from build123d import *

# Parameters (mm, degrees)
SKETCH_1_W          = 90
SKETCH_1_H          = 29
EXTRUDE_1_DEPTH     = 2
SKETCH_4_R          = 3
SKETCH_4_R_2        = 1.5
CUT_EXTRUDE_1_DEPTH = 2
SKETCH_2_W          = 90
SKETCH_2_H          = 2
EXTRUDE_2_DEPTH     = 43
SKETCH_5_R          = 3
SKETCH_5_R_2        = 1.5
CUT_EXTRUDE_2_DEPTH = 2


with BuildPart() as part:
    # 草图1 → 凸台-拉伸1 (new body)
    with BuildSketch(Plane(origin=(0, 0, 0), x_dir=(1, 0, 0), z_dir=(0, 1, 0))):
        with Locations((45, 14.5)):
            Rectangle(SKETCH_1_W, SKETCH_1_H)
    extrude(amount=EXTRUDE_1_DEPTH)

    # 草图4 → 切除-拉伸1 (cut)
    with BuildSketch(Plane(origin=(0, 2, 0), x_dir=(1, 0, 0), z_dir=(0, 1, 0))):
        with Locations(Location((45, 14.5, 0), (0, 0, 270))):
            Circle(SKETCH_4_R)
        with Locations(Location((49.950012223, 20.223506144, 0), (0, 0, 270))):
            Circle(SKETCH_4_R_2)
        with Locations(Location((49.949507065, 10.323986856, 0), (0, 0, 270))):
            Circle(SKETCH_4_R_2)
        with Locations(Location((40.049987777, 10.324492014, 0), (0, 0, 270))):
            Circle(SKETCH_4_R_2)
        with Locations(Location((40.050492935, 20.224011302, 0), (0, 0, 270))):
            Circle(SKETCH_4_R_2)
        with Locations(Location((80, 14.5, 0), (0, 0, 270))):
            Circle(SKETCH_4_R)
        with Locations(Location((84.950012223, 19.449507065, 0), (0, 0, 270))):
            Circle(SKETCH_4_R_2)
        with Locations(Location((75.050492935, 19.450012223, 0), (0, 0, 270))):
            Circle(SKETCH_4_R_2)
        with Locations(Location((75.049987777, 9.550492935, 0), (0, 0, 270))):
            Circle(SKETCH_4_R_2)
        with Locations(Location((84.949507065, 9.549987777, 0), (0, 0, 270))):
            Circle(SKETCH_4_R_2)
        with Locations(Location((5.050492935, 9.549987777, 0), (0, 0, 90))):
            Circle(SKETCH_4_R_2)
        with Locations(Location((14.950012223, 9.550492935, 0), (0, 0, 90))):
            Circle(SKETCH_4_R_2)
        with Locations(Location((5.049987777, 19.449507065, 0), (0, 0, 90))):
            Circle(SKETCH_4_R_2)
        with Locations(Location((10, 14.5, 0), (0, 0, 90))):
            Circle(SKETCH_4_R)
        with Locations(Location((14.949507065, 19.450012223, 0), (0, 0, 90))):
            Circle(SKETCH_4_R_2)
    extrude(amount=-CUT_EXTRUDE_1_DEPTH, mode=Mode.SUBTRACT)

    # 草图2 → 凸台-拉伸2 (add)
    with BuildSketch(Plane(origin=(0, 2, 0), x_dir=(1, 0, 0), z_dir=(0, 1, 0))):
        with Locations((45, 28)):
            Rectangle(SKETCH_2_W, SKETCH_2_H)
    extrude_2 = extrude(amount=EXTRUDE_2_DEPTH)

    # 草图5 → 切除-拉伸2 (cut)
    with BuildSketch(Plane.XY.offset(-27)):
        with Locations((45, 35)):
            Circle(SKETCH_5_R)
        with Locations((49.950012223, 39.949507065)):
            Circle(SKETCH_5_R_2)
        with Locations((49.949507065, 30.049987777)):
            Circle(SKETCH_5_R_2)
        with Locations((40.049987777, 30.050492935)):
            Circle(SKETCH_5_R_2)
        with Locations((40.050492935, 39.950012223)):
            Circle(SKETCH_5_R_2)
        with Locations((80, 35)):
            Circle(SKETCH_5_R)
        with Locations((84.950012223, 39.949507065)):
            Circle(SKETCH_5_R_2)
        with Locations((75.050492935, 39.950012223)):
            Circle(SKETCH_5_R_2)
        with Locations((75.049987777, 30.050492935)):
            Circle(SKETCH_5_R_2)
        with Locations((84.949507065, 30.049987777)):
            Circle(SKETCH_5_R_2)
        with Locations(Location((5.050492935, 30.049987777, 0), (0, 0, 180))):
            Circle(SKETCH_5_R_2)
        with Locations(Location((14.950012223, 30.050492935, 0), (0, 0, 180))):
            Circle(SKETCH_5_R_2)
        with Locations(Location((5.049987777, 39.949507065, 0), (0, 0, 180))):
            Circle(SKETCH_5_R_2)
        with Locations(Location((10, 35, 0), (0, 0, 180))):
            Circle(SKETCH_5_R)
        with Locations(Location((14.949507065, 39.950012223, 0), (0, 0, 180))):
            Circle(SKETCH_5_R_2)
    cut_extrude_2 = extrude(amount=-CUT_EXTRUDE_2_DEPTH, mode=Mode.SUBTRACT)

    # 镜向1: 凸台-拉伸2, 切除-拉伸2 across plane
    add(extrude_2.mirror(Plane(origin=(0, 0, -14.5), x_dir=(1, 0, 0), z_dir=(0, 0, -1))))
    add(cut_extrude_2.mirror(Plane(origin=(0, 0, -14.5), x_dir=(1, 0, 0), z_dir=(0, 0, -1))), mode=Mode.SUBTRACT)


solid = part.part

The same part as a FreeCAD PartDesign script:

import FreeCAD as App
import Part
import Sketcher
from FreeCAD import Vector

doc = App.newDocument("Part")
body = doc.addObject("PartDesign::Body", "Body")

sketch1 = doc.addObject("Sketcher::SketchObject", "Sketch")
body.addObject(sketch1)
sketch1.AttachmentSupport = (doc.XZ_Plane, [""])
sketch1.MapMode = "FlatFace"
sketch1.addGeometry(Part.LineSegment(Vector(0, -29, 0), Vector(0, 0, 0)), False)
sketch1.addGeometry(Part.LineSegment(Vector(0, 0, 0), Vector(90, 0, 0)), False)
sketch1.addGeometry(Part.LineSegment(Vector(90, 0, 0), Vector(90, -29, 0)), False)
sketch1.addGeometry(Part.LineSegment(Vector(90, -29, 0), Vector(0, -29, 0)), False)
sketch1.addConstraint(Sketcher.Constraint("Coincident", 0, 2, 1, 1))
sketch1.addConstraint(Sketcher.Constraint("Coincident", 1, 2, 2, 1))
sketch1.addConstraint(Sketcher.Constraint("Coincident", 2, 2, 3, 1))
sketch1.addConstraint(Sketcher.Constraint("Coincident", 3, 2, 0, 1))
sketch1.addConstraint(Sketcher.Constraint("Vertical", 0))
sketch1.addConstraint(Sketcher.Constraint("Horizontal", 1))
sketch1.addConstraint(Sketcher.Constraint("Vertical", 2))
sketch1.addConstraint(Sketcher.Constraint("Horizontal", 3))
sketch1.addConstraint(Sketcher.Constraint("Coincident", 0, 2, -1, 1))
sketch1.addConstraint(Sketcher.Constraint("DistanceX", 1, 1, 1, 2, 90.0))
sketch1.addConstraint(Sketcher.Constraint("DistanceY", 0, 1, 0, 2, 29.0))
pad1 = doc.addObject("PartDesign::Pad", "Pad")
body.addObject(pad1)
pad1.Profile = sketch1
pad1.Length = 2
pad1.Reversed = True

sketch2 = doc.addObject("Sketcher::SketchObject", "Sketch001")
body.addObject(sketch2)
sketch2.AttachmentSupport = (doc.XZ_Plane, [""])
sketch2.MapMode = "FlatFace"
sketch2.AttachmentOffset = App.Placement(Vector(0, 0, -2), App.Rotation())
sketch2.addGeometry(Part.Circle(Vector(45, -14.5, 0), Vector(0, 0, 1), 3), False)
sketch2.addGeometry(Part.Circle(Vector(50, -20.2, 0), Vector(0, 0, 1), 1.5), False)
sketch2.addGeometry(Part.Circle(Vector(49.9, -10.3, 0), Vector(0, 0, 1), 1.5), False)
sketch2.addGeometry(Part.Circle(Vector(40, -10.3, 0), Vector(0, 0, 1), 1.5), False)
sketch2.addGeometry(Part.Circle(Vector(40.1, -20.2, 0), Vector(0, 0, 1), 1.5), False)
sketch2.addGeometry(Part.Circle(Vector(80, -14.5, 0), Vector(0, 0, 1), 3), False)
sketch2.addGeometry(Part.Circle(Vector(85, -19.4, 0), Vector(0, 0, 1), 1.5), False)
sketch2.addGeometry(Part.Circle(Vector(75.1, -19.5, 0), Vector(0, 0, 1), 1.5), False)
sketch2.addGeometry(Part.Circle(Vector(75, -9.6, 0), Vector(0, 0, 1), 1.5), False)
sketch2.addGeometry(Part.Circle(Vector(84.9, -9.5, 0), Vector(0, 0, 1), 1.5), False)
sketch2.addGeometry(Part.Circle(Vector(5.1, -9.5, 0), Vector(0, 0, 1), 1.5), False)
sketch2.addGeometry(Part.Circle(Vector(15, -9.6, 0), Vector(0, 0, 1), 1.5), False)
sketch2.addGeometry(Part.Circle(Vector(5, -19.4, 0), Vector(0, 0, 1), 1.5), False)
sketch2.addGeometry(Part.Circle(Vector(10, -14.5, 0), Vector(0, 0, 1), 3), False)
sketch2.addGeometry(Part.Circle(Vector(14.9, -19.5, 0), Vector(0, 0, 1), 1.5), False)
sketch2.addConstraint(Sketcher.Constraint("Equal", 1, 2))
sketch2.addConstraint(Sketcher.Constraint("Equal", 2, 3))
sketch2.addConstraint(Sketcher.Constraint("Equal", 3, 4))
sketch2.addConstraint(Sketcher.Constraint("Equal", 0, 5))
sketch2.addConstraint(Sketcher.Constraint("Equal", 4, 6))
sketch2.addConstraint(Sketcher.Constraint("Equal", 6, 7))
sketch2.addConstraint(Sketcher.Constraint("Equal", 7, 8))
sketch2.addConstraint(Sketcher.Constraint("Equal", 8, 9))
sketch2.addConstraint(Sketcher.Constraint("Equal", 9, 10))
sketch2.addConstraint(Sketcher.Constraint("Equal", 10, 11))
sketch2.addConstraint(Sketcher.Constraint("Equal", 11, 12))
sketch2.addConstraint(Sketcher.Constraint("Equal", 5, 13))
sketch2.addConstraint(Sketcher.Constraint("Equal", 12, 14))
sketch2.addConstraint(Sketcher.Constraint("Horizontal", 0, 3, 5, 3))
sketch2.addConstraint(Sketcher.Constraint("Horizontal", 9, 3, 10, 3))
sketch2.addConstraint(Sketcher.Constraint("Horizontal", 8, 3, 11, 3))
sketch2.addConstraint(Sketcher.Constraint("Horizontal", 6, 3, 12, 3))
sketch2.addConstraint(Sketcher.Constraint("Horizontal", 5, 3, 13, 3))
sketch2.addConstraint(Sketcher.Constraint("Horizontal", 7, 3, 14, 3))
sketch2.addConstraint(Sketcher.Constraint("Diameter", 0, 6.0))
sketch2.addConstraint(Sketcher.Constraint("Diameter", 1, 3.0))
sketch2.addConstraint(Sketcher.Constraint("DistanceX", -1, 1, 0, 3, 45.0))
sketch2.addConstraint(Sketcher.Constraint("DistanceX", -1, 1, 5, 3, 80.0))
sketch2.addConstraint(Sketcher.Constraint("DistanceX", -1, 1, 13, 3, 10.0))
sketch2.addConstraint(Sketcher.Constraint("DistanceX", 1, 3, 6, 3, 35.0))
sketch2.addConstraint(Sketcher.Constraint("DistanceX", 2, 3, 9, 3, 35.0))
sketch2.addConstraint(Sketcher.Constraint("DistanceX", 10, 3, 4, 3, 35.0))
sketch2.addConstraint(Sketcher.Constraint("DistanceX", 12, 3, 3, 3, 35.0))
sketch2.addConstraint(Sketcher.Constraint("DistanceY", 0, 3, -1, 1, 14.5))
sketch2.addConstraint(Sketcher.Constraint("DistanceY", 1, 3, 6, 3, 0.773999))
sketch2.addConstraint(Sketcher.Constraint("DistanceY", 2, 3, 9, 3, 0.773999))
sketch2.addConstraint(Sketcher.Constraint("DistanceY", 3, 3, 11, 3, 0.773999))
sketch2.addConstraint(Sketcher.Constraint("DistanceY", 4, 3, 14, 3, 0.773999))
sketch2.addConstraint(Sketcher.Constraint("DistanceY", 4, 3, -1, 1, 20.224011))
sketch2.addConstraint(Sketcher.Constraint("DistanceY", 1, 3, 2, 3, 9.899519))
sketch2.addConstraint(Sketcher.Constraint("DistanceX", 3, 3, 2, 3, 9.899519))
sketch2.addConstraint(Sketcher.Constraint("DistanceX", 4, 3, 1, 3, 9.899519))
sketch2.addConstraint(Sketcher.Constraint("DistanceY", 4, 3, 3, 3, 9.899519))
sketch2.addConstraint(Sketcher.Constraint("DistanceX", 7, 3, 6, 3, 9.899519))
sketch2.addConstraint(Sketcher.Constraint("DistanceX", 2, 3, 8, 3, 25.100481))
sketch2.addConstraint(Sketcher.Constraint("DistanceX", 10, 3, 11, 3, 9.899519))
sketch2.addConstraint(Sketcher.Constraint("DistanceX", 12, 3, 14, 3, 9.899519))
sketch2.addConstraint(Sketcher.Constraint("DistanceX", -1, 1, 1, 3, 49.950012))
sketch2.addConstraint(Sketcher.Constraint("DistanceY", 1, 3, -1, 1, 20.223506))
sketch2.addConstraint(Sketcher.Constraint("DistanceX", -1, 1, 2, 3, 49.949507))
pocket1 = doc.addObject("PartDesign::Pocket", "Pocket")
body.addObject(pocket1)
pocket1.Profile = sketch2
pocket1.Length = 2
pocket1.Reversed = True

sketch3 = doc.addObject("Sketcher::SketchObject", "Sketch002")
body.addObject(sketch3)
sketch3.AttachmentSupport = (doc.XZ_Plane, [""])
sketch3.MapMode = "FlatFace"
sketch3.AttachmentOffset = App.Placement(Vector(0, 0, -2), App.Rotation())
sketch3.addGeometry(Part.LineSegment(Vector(0, -29, 0), Vector(0, -27, 0)), False)
sketch3.addGeometry(Part.LineSegment(Vector(0, -27, 0), Vector(90, -27, 0)), False)
sketch3.addGeometry(Part.LineSegment(Vector(90, -27, 0), Vector(90, -29, 0)), False)
sketch3.addGeometry(Part.LineSegment(Vector(90, -29, 0), Vector(0, -29, 0)), False)
sketch3.addConstraint(Sketcher.Constraint("Coincident", 0, 2, 1, 1))
sketch3.addConstraint(Sketcher.Constraint("Coincident", 1, 2, 2, 1))
sketch3.addConstraint(Sketcher.Constraint("Coincident", 2, 2, 3, 1))
sketch3.addConstraint(Sketcher.Constraint("Coincident", 3, 2, 0, 1))
sketch3.addConstraint(Sketcher.Constraint("Vertical", 0))
sketch3.addConstraint(Sketcher.Constraint("Horizontal", 1))
sketch3.addConstraint(Sketcher.Constraint("Vertical", 2))
sketch3.addConstraint(Sketcher.Constraint("Horizontal", 3))
sketch3.addConstraint(Sketcher.Constraint("PointOnObject", 0, 2, -2))
sketch3.addConstraint(Sketcher.Constraint("DistanceX", 1, 1, 1, 2, 90.0))
sketch3.addConstraint(Sketcher.Constraint("DistanceY", 0, 1, 0, 2, 2.0))
sketch3.addConstraint(Sketcher.Constraint("DistanceY", 0, 2, -1, 1, 27.0))
pad2 = doc.addObject("PartDesign::Pad", "Pad001")
body.addObject(pad2)
pad2.Profile = sketch3
pad2.Length = 43
pad2.Reversed = True

sketch4 = doc.addObject("Sketcher::SketchObject", "Sketch003")
body.addObject(sketch4)
sketch4.AttachmentSupport = (doc.XY_Plane, [""])
sketch4.MapMode = "FlatFace"
sketch4.AttachmentOffset = App.Placement(Vector(0, 0, -27), App.Rotation())
sketch4.addGeometry(Part.Circle(Vector(45, 35, 0), Vector(0, 0, 1), 3), False)
sketch4.addGeometry(Part.Circle(Vector(50, 39.9, 0), Vector(0, 0, 1), 1.5), False)
sketch4.addGeometry(Part.Circle(Vector(49.9, 30, 0), Vector(0, 0, 1), 1.5), False)
sketch4.addGeometry(Part.Circle(Vector(40, 30.1, 0), Vector(0, 0, 1), 1.5), False)
sketch4.addGeometry(Part.Circle(Vector(40.1, 40, 0), Vector(0, 0, 1), 1.5), False)
sketch4.addGeometry(Part.Circle(Vector(80, 35, 0), Vector(0, 0, 1), 3), False)
sketch4.addGeometry(Part.Circle(Vector(85, 39.9, 0), Vector(0, 0, 1), 1.5), False)
sketch4.addGeometry(Part.Circle(Vector(75.1, 40, 0), Vector(0, 0, 1), 1.5), False)
sketch4.addGeometry(Part.Circle(Vector(75, 30.1, 0), Vector(0, 0, 1), 1.5), False)
sketch4.addGeometry(Part.Circle(Vector(84.9, 30, 0), Vector(0, 0, 1), 1.5), False)
sketch4.addGeometry(Part.Circle(Vector(5.1, 30, 0), Vector(0, 0, 1), 1.5), False)
sketch4.addGeometry(Part.Circle(Vector(15, 30.1, 0), Vector(0, 0, 1), 1.5), False)
sketch4.addGeometry(Part.Circle(Vector(5, 39.9, 0), Vector(0, 0, 1), 1.5), False)
sketch4.addGeometry(Part.Circle(Vector(10, 35, 0), Vector(0, 0, 1), 3), False)
sketch4.addGeometry(Part.Circle(Vector(14.9, 40, 0), Vector(0, 0, 1), 1.5), False)
sketch4.addConstraint(Sketcher.Constraint("Equal", 1, 2))
sketch4.addConstraint(Sketcher.Constraint("Equal", 2, 3))
sketch4.addConstraint(Sketcher.Constraint("Equal", 3, 4))
sketch4.addConstraint(Sketcher.Constraint("Equal", 0, 5))
sketch4.addConstraint(Sketcher.Constraint("Equal", 4, 6))
sketch4.addConstraint(Sketcher.Constraint("Equal", 6, 7))
sketch4.addConstraint(Sketcher.Constraint("Equal", 7, 8))
sketch4.addConstraint(Sketcher.Constraint("Equal", 8, 9))
sketch4.addConstraint(Sketcher.Constraint("Equal", 9, 10))
sketch4.addConstraint(Sketcher.Constraint("Equal", 10, 11))
sketch4.addConstraint(Sketcher.Constraint("Equal", 11, 12))
sketch4.addConstraint(Sketcher.Constraint("Equal", 5, 13))
sketch4.addConstraint(Sketcher.Constraint("Equal", 12, 14))
sketch4.addConstraint(Sketcher.Constraint("Horizontal", 0, 3, 5, 3))
sketch4.addConstraint(Sketcher.Constraint("Horizontal", 1, 3, 6, 3))
sketch4.addConstraint(Sketcher.Constraint("Horizontal", 4, 3, 7, 3))
sketch4.addConstraint(Sketcher.Constraint("Horizontal", 3, 3, 8, 3))
sketch4.addConstraint(Sketcher.Constraint("Horizontal", 2, 3, 9, 3))
sketch4.addConstraint(Sketcher.Constraint("Horizontal", 9, 3, 10, 3))
sketch4.addConstraint(Sketcher.Constraint("Horizontal", 8, 3, 11, 3))
sketch4.addConstraint(Sketcher.Constraint("Horizontal", 6, 3, 12, 3))
sketch4.addConstraint(Sketcher.Constraint("Horizontal", 5, 3, 13, 3))
sketch4.addConstraint(Sketcher.Constraint("Horizontal", 7, 3, 14, 3))
sketch4.addConstraint(Sketcher.Constraint("Diameter", 0, 6.0))
sketch4.addConstraint(Sketcher.Constraint("Diameter", 1, 3.0))
sketch4.addConstraint(Sketcher.Constraint("DistanceX", -1, 1, 0, 3, 45.0))
sketch4.addConstraint(Sketcher.Constraint("DistanceY", -1, 1, 0, 3, 35.0))
sketch4.addConstraint(Sketcher.Constraint("DistanceX", -1, 1, 5, 3, 80.0))
sketch4.addConstraint(Sketcher.Constraint("DistanceX", -1, 1, 13, 3, 10.0))
sketch4.addConstraint(Sketcher.Constraint("DistanceX", 1, 3, 6, 3, 35.0))
sketch4.addConstraint(Sketcher.Constraint("DistanceX", 2, 3, 9, 3, 35.0))
sketch4.addConstraint(Sketcher.Constraint("DistanceX", 10, 3, 4, 3, 35.0))
sketch4.addConstraint(Sketcher.Constraint("DistanceX", 12, 3, 3, 3, 35.0))
sketch4.addConstraint(Sketcher.Constraint("DistanceY", 2, 3, 1, 3, 9.899519))
sketch4.addConstraint(Sketcher.Constraint("DistanceX", 3, 3, 2, 3, 9.899519))
sketch4.addConstraint(Sketcher.Constraint("DistanceX", 4, 3, 1, 3, 9.899519))
sketch4.addConstraint(Sketcher.Constraint("DistanceY", 3, 3, 4, 3, 9.899519))
sketch4.addConstraint(Sketcher.Constraint("DistanceX", 7, 3, 6, 3, 9.899519))
sketch4.addConstraint(Sketcher.Constraint("DistanceX", 2, 3, 8, 3, 25.100481))
sketch4.addConstraint(Sketcher.Constraint("DistanceX", 10, 3, 11, 3, 9.899519))
sketch4.addConstraint(Sketcher.Constraint("DistanceX", 12, 3, 14, 3, 9.899519))
sketch4.addConstraint(Sketcher.Constraint("DistanceX", -1, 1, 1, 3, 49.950012))
sketch4.addConstraint(Sketcher.Constraint("DistanceY", -1, 1, 1, 3, 39.949507))
sketch4.addConstraint(Sketcher.Constraint("DistanceX", -1, 1, 2, 3, 49.949507))
sketch4.addConstraint(Sketcher.Constraint("DistanceY", -1, 1, 3, 3, 30.050493))
pocket2 = doc.addObject("PartDesign::Pocket", "Pocket001")
body.addObject(pocket2)
pocket2.Profile = sketch4
pocket2.Length = 2
doc.recompute()

datumplane = doc.addObject("PartDesign::Plane", "DatumPlane")
body.addObject(datumplane)
datumplane.AttachmentSupport = (doc.XY_Plane, [""])
datumplane.MapMode = "FlatFace"
datumplane.AttachmentOffset = App.Placement(Vector(0, 0, -14.5), App.Rotation())
mirrored = doc.addObject("PartDesign::Mirrored", "Mirrored")
body.addObject(mirrored)
mirrored.Originals = [pad2, pocket2]
mirrored.MirrorPlane = (datumplane, [""])
body.Tip = mirrored

doc.recompute()
